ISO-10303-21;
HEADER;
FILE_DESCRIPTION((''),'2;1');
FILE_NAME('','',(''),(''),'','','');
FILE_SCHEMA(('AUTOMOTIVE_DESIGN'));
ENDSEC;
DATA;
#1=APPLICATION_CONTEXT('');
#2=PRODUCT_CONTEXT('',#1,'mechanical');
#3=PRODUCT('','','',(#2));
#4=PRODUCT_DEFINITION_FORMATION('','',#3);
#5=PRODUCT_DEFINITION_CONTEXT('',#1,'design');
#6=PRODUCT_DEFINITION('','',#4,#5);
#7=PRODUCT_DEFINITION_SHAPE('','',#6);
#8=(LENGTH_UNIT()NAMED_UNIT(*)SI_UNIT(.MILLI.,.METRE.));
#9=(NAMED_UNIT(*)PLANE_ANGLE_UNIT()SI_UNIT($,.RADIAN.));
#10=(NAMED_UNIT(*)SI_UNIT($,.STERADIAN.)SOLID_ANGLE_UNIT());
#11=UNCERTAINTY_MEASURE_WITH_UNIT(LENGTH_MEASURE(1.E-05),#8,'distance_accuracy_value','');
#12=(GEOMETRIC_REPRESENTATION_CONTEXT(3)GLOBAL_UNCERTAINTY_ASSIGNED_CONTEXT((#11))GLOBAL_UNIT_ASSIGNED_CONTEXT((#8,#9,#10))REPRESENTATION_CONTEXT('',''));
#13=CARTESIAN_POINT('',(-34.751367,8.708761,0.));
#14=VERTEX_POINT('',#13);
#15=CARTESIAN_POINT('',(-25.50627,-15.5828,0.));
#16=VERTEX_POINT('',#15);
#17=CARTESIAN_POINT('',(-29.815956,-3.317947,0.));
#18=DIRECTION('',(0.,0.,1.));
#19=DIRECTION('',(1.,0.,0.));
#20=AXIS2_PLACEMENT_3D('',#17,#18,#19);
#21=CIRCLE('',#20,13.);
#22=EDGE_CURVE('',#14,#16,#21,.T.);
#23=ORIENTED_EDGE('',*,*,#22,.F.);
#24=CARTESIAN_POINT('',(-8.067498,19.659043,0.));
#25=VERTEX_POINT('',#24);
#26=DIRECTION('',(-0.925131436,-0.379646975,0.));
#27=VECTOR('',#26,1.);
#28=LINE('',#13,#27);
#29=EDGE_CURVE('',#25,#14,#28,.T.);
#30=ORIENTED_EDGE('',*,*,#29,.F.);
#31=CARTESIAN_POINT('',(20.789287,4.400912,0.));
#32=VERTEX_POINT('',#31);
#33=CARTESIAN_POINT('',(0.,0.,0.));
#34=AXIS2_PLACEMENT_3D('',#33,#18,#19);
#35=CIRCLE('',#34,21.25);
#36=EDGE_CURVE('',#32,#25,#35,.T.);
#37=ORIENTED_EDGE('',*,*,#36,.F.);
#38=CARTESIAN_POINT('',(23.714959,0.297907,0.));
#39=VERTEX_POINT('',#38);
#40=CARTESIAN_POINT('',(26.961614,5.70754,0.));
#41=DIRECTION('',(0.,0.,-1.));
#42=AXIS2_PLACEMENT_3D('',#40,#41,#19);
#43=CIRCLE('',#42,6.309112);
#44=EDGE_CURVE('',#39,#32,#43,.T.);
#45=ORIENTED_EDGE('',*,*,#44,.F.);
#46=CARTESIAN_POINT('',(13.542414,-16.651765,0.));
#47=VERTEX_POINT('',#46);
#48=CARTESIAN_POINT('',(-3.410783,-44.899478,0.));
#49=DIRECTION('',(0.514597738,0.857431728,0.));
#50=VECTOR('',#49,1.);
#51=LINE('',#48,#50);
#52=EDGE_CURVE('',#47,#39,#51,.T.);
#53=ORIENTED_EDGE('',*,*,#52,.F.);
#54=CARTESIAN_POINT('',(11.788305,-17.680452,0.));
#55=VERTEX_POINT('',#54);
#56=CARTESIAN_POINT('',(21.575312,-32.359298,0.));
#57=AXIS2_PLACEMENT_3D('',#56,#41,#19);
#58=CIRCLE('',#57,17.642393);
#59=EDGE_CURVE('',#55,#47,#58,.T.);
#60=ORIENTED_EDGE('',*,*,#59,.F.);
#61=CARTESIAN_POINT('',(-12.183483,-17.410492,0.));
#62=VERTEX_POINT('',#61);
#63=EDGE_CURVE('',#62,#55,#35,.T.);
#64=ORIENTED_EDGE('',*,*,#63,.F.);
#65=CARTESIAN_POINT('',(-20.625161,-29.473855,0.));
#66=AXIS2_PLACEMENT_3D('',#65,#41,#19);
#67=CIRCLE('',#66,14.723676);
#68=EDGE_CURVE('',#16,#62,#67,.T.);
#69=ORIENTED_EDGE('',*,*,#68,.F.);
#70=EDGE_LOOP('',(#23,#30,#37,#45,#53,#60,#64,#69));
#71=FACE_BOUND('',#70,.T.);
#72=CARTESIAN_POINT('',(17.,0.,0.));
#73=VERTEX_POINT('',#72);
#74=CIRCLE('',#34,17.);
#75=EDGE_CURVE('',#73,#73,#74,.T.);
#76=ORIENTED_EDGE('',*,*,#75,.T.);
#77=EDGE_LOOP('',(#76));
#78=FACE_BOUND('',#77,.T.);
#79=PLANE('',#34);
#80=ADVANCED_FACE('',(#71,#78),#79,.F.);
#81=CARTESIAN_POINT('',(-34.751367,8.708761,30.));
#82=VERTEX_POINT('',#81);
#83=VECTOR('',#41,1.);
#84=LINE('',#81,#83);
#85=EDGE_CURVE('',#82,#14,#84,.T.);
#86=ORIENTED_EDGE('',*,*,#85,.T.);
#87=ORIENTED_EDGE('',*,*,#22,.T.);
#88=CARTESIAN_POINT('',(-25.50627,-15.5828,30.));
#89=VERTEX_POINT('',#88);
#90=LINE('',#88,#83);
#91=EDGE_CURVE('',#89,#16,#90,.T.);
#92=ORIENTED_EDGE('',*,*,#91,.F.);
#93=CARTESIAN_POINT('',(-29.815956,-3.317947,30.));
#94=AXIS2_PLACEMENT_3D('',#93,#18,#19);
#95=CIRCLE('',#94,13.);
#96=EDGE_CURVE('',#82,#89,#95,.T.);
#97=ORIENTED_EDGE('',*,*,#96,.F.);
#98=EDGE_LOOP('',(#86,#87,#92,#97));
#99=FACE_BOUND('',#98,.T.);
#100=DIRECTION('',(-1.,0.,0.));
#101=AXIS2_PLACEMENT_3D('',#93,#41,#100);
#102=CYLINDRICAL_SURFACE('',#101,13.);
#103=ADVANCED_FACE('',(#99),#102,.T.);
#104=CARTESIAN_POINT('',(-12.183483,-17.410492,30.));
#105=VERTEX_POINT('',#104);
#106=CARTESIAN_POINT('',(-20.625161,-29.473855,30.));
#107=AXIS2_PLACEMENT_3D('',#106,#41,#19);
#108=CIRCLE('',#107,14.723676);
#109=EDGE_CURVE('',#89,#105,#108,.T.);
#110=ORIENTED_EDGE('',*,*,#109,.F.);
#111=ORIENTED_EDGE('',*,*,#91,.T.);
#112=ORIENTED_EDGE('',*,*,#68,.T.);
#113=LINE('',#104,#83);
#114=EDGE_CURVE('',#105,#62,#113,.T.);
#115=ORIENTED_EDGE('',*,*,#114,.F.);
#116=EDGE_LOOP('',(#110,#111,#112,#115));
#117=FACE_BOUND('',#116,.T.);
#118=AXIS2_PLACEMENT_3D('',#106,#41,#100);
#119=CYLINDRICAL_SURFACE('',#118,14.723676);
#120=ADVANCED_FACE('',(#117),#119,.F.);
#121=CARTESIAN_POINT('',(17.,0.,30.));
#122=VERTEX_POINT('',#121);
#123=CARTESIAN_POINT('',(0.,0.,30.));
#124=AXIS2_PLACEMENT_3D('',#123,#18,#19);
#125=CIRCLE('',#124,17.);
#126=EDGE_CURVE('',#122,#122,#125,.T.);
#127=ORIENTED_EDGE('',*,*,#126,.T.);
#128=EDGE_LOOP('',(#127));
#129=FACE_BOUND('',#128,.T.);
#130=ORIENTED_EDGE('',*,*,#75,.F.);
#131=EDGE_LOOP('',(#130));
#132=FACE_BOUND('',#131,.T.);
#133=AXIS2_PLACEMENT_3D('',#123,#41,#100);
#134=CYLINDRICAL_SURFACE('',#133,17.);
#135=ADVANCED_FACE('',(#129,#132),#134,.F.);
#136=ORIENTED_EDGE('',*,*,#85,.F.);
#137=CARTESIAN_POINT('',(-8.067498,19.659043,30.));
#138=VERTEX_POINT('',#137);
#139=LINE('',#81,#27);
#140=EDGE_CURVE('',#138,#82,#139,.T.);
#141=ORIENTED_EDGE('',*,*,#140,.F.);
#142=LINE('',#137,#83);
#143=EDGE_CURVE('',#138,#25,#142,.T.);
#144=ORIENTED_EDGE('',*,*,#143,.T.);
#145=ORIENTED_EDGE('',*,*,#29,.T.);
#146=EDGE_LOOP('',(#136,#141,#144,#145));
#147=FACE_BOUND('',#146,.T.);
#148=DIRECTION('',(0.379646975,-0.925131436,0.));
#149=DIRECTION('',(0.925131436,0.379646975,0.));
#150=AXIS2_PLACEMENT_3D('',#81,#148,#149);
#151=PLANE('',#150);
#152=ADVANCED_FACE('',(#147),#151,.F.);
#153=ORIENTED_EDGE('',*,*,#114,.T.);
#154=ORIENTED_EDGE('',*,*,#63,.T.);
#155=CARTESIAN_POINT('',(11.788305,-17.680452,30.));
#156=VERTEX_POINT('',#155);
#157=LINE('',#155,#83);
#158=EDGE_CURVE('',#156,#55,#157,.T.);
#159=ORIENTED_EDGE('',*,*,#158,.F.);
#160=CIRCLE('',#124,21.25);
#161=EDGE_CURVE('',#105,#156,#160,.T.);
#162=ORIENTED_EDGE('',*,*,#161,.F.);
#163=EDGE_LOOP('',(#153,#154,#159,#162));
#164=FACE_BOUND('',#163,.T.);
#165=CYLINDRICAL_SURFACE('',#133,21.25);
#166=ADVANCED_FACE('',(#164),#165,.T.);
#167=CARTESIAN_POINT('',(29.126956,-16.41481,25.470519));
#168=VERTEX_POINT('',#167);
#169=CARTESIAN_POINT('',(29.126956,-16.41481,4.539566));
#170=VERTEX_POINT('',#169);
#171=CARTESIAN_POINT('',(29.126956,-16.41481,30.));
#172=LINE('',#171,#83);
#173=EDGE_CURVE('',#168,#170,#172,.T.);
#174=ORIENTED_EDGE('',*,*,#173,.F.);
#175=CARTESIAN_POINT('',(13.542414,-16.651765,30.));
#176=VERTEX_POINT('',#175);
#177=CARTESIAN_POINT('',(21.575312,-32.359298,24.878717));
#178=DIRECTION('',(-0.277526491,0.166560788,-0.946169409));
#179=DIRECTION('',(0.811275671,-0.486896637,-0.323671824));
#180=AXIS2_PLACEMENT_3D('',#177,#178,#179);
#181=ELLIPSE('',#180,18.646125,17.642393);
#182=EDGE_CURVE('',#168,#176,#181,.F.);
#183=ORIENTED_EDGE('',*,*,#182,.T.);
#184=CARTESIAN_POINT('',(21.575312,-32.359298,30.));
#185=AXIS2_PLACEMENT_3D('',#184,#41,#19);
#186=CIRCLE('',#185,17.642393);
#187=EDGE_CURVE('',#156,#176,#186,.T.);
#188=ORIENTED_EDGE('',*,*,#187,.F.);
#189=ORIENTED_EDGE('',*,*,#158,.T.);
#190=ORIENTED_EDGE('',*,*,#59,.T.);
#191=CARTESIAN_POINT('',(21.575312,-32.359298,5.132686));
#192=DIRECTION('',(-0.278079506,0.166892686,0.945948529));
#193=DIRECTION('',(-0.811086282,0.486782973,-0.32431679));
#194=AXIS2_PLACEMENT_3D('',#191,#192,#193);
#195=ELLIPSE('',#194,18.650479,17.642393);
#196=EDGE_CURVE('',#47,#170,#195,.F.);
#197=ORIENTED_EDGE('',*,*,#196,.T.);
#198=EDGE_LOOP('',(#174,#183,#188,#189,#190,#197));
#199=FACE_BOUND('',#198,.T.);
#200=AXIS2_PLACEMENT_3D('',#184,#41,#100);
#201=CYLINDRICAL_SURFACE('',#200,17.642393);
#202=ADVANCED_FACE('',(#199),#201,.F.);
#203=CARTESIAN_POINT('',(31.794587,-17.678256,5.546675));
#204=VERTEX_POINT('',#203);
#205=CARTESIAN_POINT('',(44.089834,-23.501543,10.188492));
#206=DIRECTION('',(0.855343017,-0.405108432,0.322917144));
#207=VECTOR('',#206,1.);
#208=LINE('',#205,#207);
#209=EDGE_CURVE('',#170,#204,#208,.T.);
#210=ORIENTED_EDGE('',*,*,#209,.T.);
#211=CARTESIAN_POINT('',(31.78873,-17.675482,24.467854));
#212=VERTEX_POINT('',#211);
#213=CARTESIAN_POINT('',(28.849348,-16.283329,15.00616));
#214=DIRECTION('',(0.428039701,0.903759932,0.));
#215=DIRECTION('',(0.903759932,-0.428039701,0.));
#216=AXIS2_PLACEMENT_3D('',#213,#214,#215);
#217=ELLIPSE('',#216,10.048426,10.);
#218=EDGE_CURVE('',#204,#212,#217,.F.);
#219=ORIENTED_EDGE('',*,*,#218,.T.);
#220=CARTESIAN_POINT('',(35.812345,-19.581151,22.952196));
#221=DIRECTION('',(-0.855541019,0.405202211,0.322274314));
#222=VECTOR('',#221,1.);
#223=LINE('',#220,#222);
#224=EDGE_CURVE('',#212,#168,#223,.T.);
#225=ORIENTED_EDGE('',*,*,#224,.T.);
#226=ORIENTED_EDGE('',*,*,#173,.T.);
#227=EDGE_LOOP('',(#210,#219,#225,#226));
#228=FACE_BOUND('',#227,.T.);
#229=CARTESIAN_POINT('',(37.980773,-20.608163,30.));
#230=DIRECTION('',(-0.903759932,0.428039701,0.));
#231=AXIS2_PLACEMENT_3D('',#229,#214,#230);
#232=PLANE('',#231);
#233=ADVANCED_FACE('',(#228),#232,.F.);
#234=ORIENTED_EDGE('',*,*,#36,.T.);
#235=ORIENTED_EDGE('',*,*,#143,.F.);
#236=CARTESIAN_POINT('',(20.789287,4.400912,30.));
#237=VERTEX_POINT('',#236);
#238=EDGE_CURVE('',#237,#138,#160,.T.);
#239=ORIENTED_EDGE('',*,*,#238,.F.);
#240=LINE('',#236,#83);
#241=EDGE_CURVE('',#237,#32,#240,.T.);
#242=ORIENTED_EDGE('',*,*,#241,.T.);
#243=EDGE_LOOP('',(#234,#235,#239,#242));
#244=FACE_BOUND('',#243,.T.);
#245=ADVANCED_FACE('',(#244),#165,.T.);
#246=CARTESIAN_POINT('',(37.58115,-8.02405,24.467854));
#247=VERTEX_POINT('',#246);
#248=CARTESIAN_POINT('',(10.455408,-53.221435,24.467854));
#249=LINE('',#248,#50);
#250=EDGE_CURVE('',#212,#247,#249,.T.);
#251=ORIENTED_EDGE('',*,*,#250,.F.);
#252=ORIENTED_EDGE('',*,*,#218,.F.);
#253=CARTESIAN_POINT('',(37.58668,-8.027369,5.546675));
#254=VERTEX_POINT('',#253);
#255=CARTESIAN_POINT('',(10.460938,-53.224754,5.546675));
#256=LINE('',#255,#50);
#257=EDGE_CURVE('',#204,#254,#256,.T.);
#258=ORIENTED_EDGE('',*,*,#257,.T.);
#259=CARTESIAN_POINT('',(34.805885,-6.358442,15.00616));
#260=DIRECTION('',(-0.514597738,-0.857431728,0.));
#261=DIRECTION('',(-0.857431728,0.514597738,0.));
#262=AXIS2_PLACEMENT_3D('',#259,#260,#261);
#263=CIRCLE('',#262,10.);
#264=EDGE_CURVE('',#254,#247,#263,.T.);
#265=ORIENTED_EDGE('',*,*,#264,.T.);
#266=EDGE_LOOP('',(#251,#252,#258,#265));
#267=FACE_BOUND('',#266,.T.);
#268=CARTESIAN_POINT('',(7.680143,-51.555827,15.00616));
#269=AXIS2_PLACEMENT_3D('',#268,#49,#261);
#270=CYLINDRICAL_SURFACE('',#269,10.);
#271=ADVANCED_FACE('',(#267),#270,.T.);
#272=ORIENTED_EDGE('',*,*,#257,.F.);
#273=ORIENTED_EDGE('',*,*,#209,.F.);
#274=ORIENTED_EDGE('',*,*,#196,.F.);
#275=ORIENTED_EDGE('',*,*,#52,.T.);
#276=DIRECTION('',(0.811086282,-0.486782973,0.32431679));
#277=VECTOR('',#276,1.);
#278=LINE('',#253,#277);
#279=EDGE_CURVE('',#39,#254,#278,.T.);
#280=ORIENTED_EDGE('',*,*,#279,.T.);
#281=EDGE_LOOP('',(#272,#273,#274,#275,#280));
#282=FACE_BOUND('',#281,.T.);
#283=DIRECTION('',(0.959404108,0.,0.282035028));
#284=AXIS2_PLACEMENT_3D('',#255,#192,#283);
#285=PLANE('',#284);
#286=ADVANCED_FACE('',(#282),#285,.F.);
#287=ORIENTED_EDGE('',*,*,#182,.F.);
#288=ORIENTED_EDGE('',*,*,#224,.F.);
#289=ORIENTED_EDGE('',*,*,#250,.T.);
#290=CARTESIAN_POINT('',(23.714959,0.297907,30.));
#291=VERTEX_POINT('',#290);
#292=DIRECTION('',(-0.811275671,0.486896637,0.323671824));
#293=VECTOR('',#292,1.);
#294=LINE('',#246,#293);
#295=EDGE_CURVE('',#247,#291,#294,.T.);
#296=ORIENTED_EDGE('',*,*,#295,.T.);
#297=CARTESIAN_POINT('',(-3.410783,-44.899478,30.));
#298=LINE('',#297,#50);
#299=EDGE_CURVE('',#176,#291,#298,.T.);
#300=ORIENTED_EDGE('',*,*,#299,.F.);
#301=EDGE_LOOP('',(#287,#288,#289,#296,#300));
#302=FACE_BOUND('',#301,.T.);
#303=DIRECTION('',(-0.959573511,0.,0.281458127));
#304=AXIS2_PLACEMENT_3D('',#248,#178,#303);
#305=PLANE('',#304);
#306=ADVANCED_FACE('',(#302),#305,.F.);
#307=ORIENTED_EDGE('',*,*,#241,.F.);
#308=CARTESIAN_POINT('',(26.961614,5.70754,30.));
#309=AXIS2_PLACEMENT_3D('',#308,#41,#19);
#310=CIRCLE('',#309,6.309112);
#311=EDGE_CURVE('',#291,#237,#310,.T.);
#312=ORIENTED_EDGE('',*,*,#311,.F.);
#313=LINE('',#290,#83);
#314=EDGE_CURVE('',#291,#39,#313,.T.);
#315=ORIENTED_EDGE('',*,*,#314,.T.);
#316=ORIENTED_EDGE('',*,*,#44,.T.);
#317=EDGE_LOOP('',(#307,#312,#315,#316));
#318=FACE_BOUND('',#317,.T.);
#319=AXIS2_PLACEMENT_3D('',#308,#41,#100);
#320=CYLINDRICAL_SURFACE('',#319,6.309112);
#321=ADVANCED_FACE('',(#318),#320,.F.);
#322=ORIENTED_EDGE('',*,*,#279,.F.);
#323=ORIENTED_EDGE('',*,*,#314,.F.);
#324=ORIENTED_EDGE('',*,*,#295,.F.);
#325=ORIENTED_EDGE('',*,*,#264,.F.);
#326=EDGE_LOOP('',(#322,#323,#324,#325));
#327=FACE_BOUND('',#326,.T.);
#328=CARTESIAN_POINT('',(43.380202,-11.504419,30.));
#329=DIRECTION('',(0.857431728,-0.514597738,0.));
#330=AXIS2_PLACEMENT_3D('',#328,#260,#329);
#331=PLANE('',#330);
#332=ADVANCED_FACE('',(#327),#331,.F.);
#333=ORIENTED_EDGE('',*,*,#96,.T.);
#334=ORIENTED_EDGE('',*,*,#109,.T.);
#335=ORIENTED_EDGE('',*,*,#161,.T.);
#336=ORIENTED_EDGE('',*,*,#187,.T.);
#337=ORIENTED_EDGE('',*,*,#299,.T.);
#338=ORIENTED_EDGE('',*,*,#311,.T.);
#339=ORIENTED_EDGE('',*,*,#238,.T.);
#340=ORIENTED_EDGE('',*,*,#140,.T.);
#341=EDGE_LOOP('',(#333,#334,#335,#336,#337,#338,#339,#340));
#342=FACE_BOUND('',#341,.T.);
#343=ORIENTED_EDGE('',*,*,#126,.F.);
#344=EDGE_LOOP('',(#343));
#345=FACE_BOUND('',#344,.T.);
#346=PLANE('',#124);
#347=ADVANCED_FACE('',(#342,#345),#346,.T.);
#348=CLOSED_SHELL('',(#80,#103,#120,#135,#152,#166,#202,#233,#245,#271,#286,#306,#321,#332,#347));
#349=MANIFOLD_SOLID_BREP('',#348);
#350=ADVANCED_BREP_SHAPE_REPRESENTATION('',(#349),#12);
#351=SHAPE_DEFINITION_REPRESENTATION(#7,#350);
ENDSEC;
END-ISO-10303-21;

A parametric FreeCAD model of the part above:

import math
import FreeCAD as App
import Part
import Sketcher
from FreeCAD import Vector
Q = App.Units.Quantity

doc = App.newDocument("Part")
params = doc.addObject("Spreadsheet::Sheet", "Params")
for row, (alias, value) in enumerate([
    ("sketch1_diameter", "34 mm"),
    ("sketch1_radius", "13 mm"),
    ("sketch1_radius2", "21.25 mm"),
    ("pad1_length", "30 mm"),
    ("sketch2_radius", "10 mm"),
], start=1):
    params.set(f"A{row}", alias)
    params.set(f"B{row}", "=" + value)
    params.setAlias(f"B{row}", alias)

body = doc.addObject("PartDesign::Body", "Body")

# Sketch on XY plane
sketch1 = doc.addObject("Sketcher::SketchObject", "Sketch")
body.addObject(sketch1)
sketch1.AttachmentSupport = (doc.XY_Plane, [""])
sketch1.MapMode = "FlatFace"
sketch1.addGeometry([
    Part.LineSegment(Vector(-8, 20, 0), Vector(-35, 9, 0)),  # 0
    Part.ArcOfCircle(Part.Circle(Vector(-30, -3, 0), Vector(0, 0, 1), 13), math.radians(112), math.radians(289)),  # 1
    Part.ArcOfCircle(Part.Circle(Vector(-21, -29, 0), Vector(0, 0, 1), 15), math.radians(55), math.radians(109)),  # 2
    Part.ArcOfCircle(Part.Circle(Vector(0, 0, 0), Vector(0, 0, 1), 21), math.radians(-125), math.radians(-56)),  # 3
    Part.ArcOfCircle(Part.Circle(Vector(22, -32, 0), Vector(0, 0, 1), 18), math.radians(65), math.radians(124)),  # 4
    Part.LineSegment(Vector(29, -16, 0), Vector(38, -21, 0)),  # 5
    Part.LineSegment(Vector(38, -21, 0), Vector(43, -12, 0)),  # 6
    Part.LineSegment(Vector(43, -12, 0), Vector(24, 0, 0)),  # 7
    Part.ArcOfCircle(Part.Circle(Vector(27, 6, 0), Vector(0, 0, 1), 6), math.radians(-168), math.radians(-121)),  # 8
    Part.ArcOfCircle(Part.Circle(Vector(0, 0, 0), Vector(0, 0, 1), 21), math.radians(12), math.radians(112)),  # 9
    Part.Circle(Vector(0, 0, 0), Vector(0, 0, 1), 17),  # 10
], False)
sketch1.addConstraint([
    Sketcher.Constraint("Tangent", 0, 2, 1, 1),
    Sketcher.Constraint("Tangent", 1, 2, 2, 2),
    Sketcher.Constraint("Tangent", 2, 1, 3, 1),
    Sketcher.Constraint("Tangent", 3, 2, 4, 2),
    Sketcher.Constraint("Tangent", 4, 1, 5, 1),
    Sketcher.Constraint("Coincident", 5, 2, 6, 1),
    Sketcher.Constraint("Coincident", 6, 2, 7, 1),
    Sketcher.Constraint("Tangent", 7, 2, 8, 2),
    Sketcher.Constraint("Tangent", 8, 1, 9, 1),
    Sketcher.Constraint("Tangent", 9, 2, 0, 1),
    Sketcher.Constraint("Coincident", 3, 3, -1, 1),
    Sketcher.Constraint("Coincident", 9, 3, -1, 1),
    Sketcher.Constraint("Coincident", 10, 3, -1, 1),
    Sketcher.Constraint("Equal", 3, 9),
    Sketcher.Constraint("Diameter", 10, Q("34 mm")),
    Sketcher.Constraint("Radius", 1, Q("13 mm")),
    Sketcher.Constraint("Radius", 3, Q("21.25 mm")),
    Sketcher.Constraint("Radius", 8, Q("6.309112 mm")),
    Sketcher.Constraint("Radius", 2, Q("14.723676 mm")),
    Sketcher.Constraint("Radius", 4, Q("17.642393 mm")),
    Sketcher.Constraint("DistanceY", 1, 2, -1, 1, Q("15.5828 mm")),
    Sketcher.Constraint("DistanceX", 9, 2, -1, 1, Q("8.067498 mm")),
    Sketcher.Constraint("DistanceX", -1, 1, 4, 3, Q("21.575312 mm")),
    Sketcher.Constraint("DistanceY", -1, 1, 8, 3, Q("5.70754 mm")),
    Sketcher.Constraint("DistanceY", 4, 1, -1, 1, Q("16.41481 mm")),
    Sketcher.Constraint("DistanceY", 6, 2, -1, 1, Q("11.504419 mm")),
    Sketcher.Constraint("DistanceX", -1, 1, 7, 2, Q("23.714959 mm")),
    Sketcher.Constraint("DistanceX", 4, 3, 5, 2, Q("16.405461 mm")),
])
sketch1.setExpression("Constraints[14]", "Params.sketch1_diameter")
sketch1.setExpression("Constraints[15]", "Params.sketch1_radius")
sketch1.setExpression("Constraints[16]", "Params.sketch1_radius2")
pad1 = doc.addObject("PartDesign::Pad", "Pad")
body.addObject(pad1)
pad1.Profile = sketch1
pad1.setExpression("Length", "Params.pad1_length")

# Sketch on an angled plane
sketch2 = doc.addObject("Sketcher::SketchObject", "Sketch001")
body.addObject(sketch2)
sketch2.Placement = App.Placement(Vector(6.411425, 10.682827, 0), App.Rotation(Vector(0.857431728, -0.514597738, 0), Vector(0, 0, -1), Vector(0.514597738, 0.857431728, 0), "ZXY"))
sketch2.addGeometry([
    Part.LineSegment(Vector(20, 9, 0), Vector(20, 0, 0)),  # 0
    Part.LineSegment(Vector(20, 0, 0), Vector(36, -6, 0)),  # 1
    Part.ArcOfCircle(Part.Circle(Vector(33, -15, 0), Vector(0, 0, 1), 10), math.radians(-71), math.radians(71)),  # 2
    Part.LineSegment(Vector(36, -24, 0), Vector(20, -30, 0)),  # 3
    Part.LineSegment(Vector(20, -30, 0), Vector(22, -35, 0)),  # 4
    Part.LineSegment(Vector(22, -35, 0), Vector(52, -38, 0)),  # 5
    Part.LineSegment(Vector(52, -38, 0), Vector(57, 5, 0)),  # 6
    Part.LineSegment(Vector(57, 5, 0), Vector(20, 9, 0)),  # 7
], False)
sketch2.addConstraint([
    Sketcher.Constraint("Coincident", 0, 2, 1, 1),
    Sketcher.Constraint("Tangent", 1, 2, 2, 2),
    Sketcher.Constraint("Tangent", 2, 1, 3, 1),
    Sketcher.Constraint("Coincident", 3, 2, 4, 1),
    Sketcher.Constraint("Coincident", 4, 2, 5, 1),
    Sketcher.Constraint("Coincident", 5, 2, 6, 1),
    Sketcher.Constraint("Coincident", 6, 2, 7, 1),
    Sketcher.Constraint("Coincident", 7, 2, 0, 1),
    Sketcher.Constraint("Vertical", 0),
    Sketcher.Constraint("PointOnObject", 0, 2, -1),
    Sketcher.Constraint("Vertical", 0, 2, 3, 2),
    Sketcher.Constraint("Radius", 2, Q("10 mm")),
    Sketcher.Constraint("DistanceY", 3, 2, -1, 1, Q("30 mm")),
    Sketcher.Constraint("DistanceY", 0, 2, 0, 1, Q("9.238459 mm")),
    Sketcher.Constraint("Distance", 6, Q("42.68963 mm")),
    Sketcher.Constraint("DistanceX", -1, 1, 2, 3, Q("33.11571 mm")),
    Sketcher.Constraint("DistanceY", 2, 3, -1, 1, Q("15.00616 mm")),
    Sketcher.Constraint("DistanceX", -1, 1, 1, 2, Q("36.358878 mm")),
    Sketcher.Constraint("DistanceX", -1, 1, 6, 2, Q("56.582581 mm")),
    Sketcher.Constraint("DistanceY", -1, 1, 6, 2, Q("4.619229 mm")),
    Sketcher.Constraint("DistanceY", 4, 2, 2, 1, Q("10.98838 mm")),
    Sketcher.Constraint("DistanceX", 3, 2, 5, 2, Q("32.316029 mm")),
    Sketcher.Constraint("Distance", 4, Q("5.718968 mm")),
])
sketch2.setExpression("Constraints[11]", "Params.sketch2_radius")
pocket1 = doc.addObject("PartDesign::Pocket", "Pocket")
body.addObject(pocket1)
pocket1.Profile = sketch2
pocket1.Type = "ThroughAll"

doc.recompute()
